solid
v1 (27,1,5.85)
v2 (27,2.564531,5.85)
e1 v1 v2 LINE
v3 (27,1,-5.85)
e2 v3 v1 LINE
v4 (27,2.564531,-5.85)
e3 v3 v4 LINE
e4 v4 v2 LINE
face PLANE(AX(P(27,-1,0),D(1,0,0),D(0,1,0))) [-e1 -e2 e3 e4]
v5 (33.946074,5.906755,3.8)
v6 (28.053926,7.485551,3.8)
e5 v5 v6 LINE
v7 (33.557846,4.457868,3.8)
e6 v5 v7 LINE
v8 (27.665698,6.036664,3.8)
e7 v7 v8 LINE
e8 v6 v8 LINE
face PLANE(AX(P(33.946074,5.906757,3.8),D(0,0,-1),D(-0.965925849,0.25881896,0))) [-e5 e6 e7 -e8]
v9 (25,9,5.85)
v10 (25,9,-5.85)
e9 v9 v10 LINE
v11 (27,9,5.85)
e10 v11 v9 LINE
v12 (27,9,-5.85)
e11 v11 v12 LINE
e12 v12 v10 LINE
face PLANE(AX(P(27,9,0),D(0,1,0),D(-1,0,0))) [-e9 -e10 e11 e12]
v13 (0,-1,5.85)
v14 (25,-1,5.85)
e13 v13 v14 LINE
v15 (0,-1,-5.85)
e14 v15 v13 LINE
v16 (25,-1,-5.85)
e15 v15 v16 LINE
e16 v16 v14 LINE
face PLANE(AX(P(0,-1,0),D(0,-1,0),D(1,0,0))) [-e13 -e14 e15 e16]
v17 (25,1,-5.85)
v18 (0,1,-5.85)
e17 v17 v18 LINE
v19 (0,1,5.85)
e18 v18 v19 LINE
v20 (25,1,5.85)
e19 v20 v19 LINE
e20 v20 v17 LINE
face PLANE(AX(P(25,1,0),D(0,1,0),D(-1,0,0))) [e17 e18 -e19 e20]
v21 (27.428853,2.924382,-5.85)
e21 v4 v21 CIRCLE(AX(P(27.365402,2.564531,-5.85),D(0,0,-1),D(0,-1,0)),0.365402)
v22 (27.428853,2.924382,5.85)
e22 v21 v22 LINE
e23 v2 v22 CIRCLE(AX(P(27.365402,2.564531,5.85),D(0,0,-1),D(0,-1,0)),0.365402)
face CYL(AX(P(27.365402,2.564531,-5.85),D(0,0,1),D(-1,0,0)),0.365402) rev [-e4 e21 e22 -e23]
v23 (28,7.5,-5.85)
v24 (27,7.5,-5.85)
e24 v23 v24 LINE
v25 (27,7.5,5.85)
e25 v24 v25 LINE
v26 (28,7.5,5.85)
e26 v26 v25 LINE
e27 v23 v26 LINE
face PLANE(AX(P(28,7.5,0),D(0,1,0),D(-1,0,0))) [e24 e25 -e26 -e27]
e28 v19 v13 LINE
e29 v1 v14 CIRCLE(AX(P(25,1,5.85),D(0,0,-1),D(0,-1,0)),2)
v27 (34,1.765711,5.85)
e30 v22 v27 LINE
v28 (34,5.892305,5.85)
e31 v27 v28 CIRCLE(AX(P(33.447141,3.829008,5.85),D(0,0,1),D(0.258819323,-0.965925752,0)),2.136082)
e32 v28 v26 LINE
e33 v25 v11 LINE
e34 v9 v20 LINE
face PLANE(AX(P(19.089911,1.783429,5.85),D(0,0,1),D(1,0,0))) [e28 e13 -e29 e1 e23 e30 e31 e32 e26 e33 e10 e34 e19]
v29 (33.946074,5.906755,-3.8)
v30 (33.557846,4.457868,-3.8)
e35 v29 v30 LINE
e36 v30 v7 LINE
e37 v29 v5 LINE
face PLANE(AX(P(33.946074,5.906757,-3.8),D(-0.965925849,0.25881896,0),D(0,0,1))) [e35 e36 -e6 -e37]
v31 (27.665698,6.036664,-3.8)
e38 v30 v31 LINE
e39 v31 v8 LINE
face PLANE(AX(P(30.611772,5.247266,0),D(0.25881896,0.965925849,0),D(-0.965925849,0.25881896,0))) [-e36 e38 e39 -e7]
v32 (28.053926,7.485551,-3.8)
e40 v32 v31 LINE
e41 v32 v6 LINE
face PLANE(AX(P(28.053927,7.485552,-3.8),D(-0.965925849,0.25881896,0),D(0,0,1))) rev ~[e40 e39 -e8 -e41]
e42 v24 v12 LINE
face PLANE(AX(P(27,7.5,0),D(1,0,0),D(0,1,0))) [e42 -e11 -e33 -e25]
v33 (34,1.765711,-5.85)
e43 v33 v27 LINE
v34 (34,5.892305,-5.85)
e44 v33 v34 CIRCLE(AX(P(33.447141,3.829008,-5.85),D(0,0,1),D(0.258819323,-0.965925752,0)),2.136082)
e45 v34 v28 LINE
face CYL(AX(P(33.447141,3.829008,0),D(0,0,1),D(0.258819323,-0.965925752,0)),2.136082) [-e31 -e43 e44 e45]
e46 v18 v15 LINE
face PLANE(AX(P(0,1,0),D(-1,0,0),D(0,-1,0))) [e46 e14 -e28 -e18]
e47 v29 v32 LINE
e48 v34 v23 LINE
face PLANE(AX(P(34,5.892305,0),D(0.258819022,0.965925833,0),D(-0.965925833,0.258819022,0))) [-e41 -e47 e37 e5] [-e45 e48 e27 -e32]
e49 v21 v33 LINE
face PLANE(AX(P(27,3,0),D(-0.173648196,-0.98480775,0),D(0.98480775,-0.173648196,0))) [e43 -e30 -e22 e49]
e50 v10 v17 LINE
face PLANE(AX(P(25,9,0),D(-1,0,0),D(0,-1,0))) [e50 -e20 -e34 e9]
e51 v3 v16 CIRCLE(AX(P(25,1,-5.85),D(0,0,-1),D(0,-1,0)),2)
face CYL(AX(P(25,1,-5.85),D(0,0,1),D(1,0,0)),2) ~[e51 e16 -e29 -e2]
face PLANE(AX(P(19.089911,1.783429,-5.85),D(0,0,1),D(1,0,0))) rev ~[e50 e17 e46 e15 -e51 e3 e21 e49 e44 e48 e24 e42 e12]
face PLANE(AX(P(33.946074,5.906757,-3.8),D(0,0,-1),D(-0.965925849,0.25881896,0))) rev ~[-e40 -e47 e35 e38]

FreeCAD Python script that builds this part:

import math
import FreeCAD as App
import Part
import Sketcher
from FreeCAD import Vector
Q = App.Units.Quantity


def edges_at(feature, points):
    """Names of the edges that pass closest to the given points."""
    edges = feature.Shape.Edges
    near = lambda p: min(range(len(edges)), key=lambda i: edges[i].distToShape(Part.Vertex(*p))[0])
    return sorted({f"Edge{near(p) + 1}" for p in points})


def add_polygon(sketch, points):
    """Adds a closed chain of lines whose ends are joined by coincident constraints."""
    first, n = sketch.GeometryCount, len(points)
    for a, b in zip(points, points[1:] + points[:1]):
        sketch.addGeometry(Part.LineSegment(App.Vector(*a, 0), App.Vector(*b, 0)), False)
    for i in range(n):
        sketch.addConstraint(Sketcher.Constraint("Coincident", first + i, 2, first + (i + 1) % n, 1))

doc = App.newDocument("Part")
params = doc.addObject("Spreadsheet::Sheet", "Params")
for row, (alias, value) in enumerate([
    ("sketch1_width", "25 mm"),
    ("sketch1_width2", "27 mm"),
    ("sketch1_width3", "1 mm"),
    ("sketch1_height", "4 mm"),
    ("sketch1_height2", "8 mm"),
    ("pad1_length", "11.7 mm"),
    ("fillet_radius", "2 mm"),
    ("fillet2_radius", "0.365402 mm"),
    ("sketch2_width", "6.1 mm"),
    ("sketch2_height", "7.6 mm"),
    ("pocket1_length", "1.5 mm"),
], start=1):
    params.set(f"A{row}", alias)
    params.set(f"B{row}", "=" + value)
    params.setAlias(f"B{row}", alias)

body = doc.addObject("PartDesign::Body", "Body")

# Sketch on XY plane
sketch1 = doc.addObject("Sketcher::SketchObject", "Sketch")
body.addObject(sketch1)
sketch1.AttachmentSupport = (doc.XY_Plane, [""])
sketch1.MapMode = "FlatFace"
sketch1.addGeometry([
    Part.LineSegment(Vector(25, 1, 0), Vector(0, 1, 0)),  # 0
    Part.LineSegment(Vector(0, 1, 0), Vector(0, -1, 0)),  # 1
    Part.LineSegment(Vector(0, -1, 0), Vector(27, -1, 0)),  # 2
    Part.LineSegment(Vector(27, -1, 0), Vector(27, 3, 0)),  # 3
    Part.LineSegment(Vector(27, 3, 0), Vector(34, 1.765711, 0)),  # 4
    Part.ArcOfCircle(Part.Circle(Vector(33.447141, 3.829008, 0), Vector(0, 0, 1), 2.136082), math.radians(-74.999983), math.radians(74.999983)),  # 5
    Part.LineSegment(Vector(34, 5.892305, 0), Vector(28, 7.5, 0)),  # 6
    Part.LineSegment(Vector(28, 7.5, 0), Vector(27, 7.5, 0)),  # 7
    Part.LineSegment(Vector(27, 7.5, 0), Vector(27, 9, 0)),  # 8
    Part.LineSegment(Vector(27, 9, 0), Vector(25, 9, 0)),  # 9
    Part.LineSegment(Vector(25, 9, 0), Vector(25, 1, 0)),  # 10
], False)
sketch1.addConstraint([
    Sketcher.Constraint("Coincident", 0, 2, 1, 1),
    Sketcher.Constraint("Coincident", 1, 2, 2, 1),
    Sketcher.Constraint("Coincident", 2, 2, 3, 1),
    Sketcher.Constraint("Coincident", 3, 2, 4, 1),
    Sketcher.Constraint("Coincident", 4, 2, 5, 1),
    Sketcher.Constraint("Tangent", 5, 2, 6, 1),
    Sketcher.Constraint("Coincident", 6, 2, 7, 1),
    Sketcher.Constraint("Coincident", 7, 2, 8, 1),
    Sketcher.Constraint("Coincident", 8, 2, 9, 1),
    Sketcher.Constraint("Coincident", 9, 2, 10, 1),
    Sketcher.Constraint("Coincident", 10, 2, 0, 1),
    Sketcher.Constraint("Horizontal", 0),
    Sketcher.Constraint("Vertical", 1),
    Sketcher.Constraint("Horizontal", 2),
    Sketcher.Constraint("Vertical", 3),
    Sketcher.Constraint("Horizontal", 7),
    Sketcher.Constraint("Vertical", 8),
    Sketcher.Constraint("Horizontal", 9),
    Sketcher.Constraint("Vertical", 10),
    Sketcher.Constraint("Symmetric", 0, 2, 1, 2, -1, 1),
    Sketcher.Constraint("Vertical", 4, 2, 5, 2),
    Sketcher.Constraint("Vertical", 3, 2, 7, 2),
    Sketcher.Constraint("Equal", 9, 1),
    Sketcher.Constraint("DistanceX", 0, 2, 0, 1, 25.0),
    Sketcher.Constraint("DistanceX", 2, 1, 2, 2, 27.0),
    Sketcher.Constraint("DistanceX", 7, 2, 7, 1, 1.0),
    Sketcher.Constraint("DistanceY", 3, 1, 3, 2, 4.0),
    Sketcher.Constraint("DistanceY", 10, 2, 10, 1, 8.0),
    Sketcher.Constraint("Angle", 4, Q("-10.000001 deg")),
    Sketcher.Constraint("Angle", 6, Q("165.000001 deg")),
    Sketcher.Constraint("DistanceY", 8, 1, 8, 2, 1.5),
    Sketcher.Constraint("DistanceX", -1, 1, 4, 2, 34.0),
])
sketch1.setExpression("Constraints[23]", "Params.sketch1_width")
sketch1.setExpression("Constraints[24]", "Params.sketch1_width2")
sketch1.setExpression("Constraints[25]", "Params.sketch1_width3")
sketch1.setExpression("Constraints[26]", "Params.sketch1_height")
sketch1.setExpression("Constraints[27]", "Params.sketch1_height2")
pad1 = doc.addObject("PartDesign::Pad", "Pad")
body.addObject(pad1)
pad1.Profile = sketch1
pad1.setExpression("Length", "Params.pad1_length")
pad1.Midplane = True
doc.recompute()

fillet = doc.addObject("PartDesign::Fillet", "Fillet")
body.addObject(fillet)
fillet.Base = (pad1, edges_at(pad1, [(27, -1, 0)]))
fillet.setExpression("Radius", "Params.fillet_radius")
doc.recompute()

fillet2 = doc.addObject("PartDesign::Fillet", "Fillet001")
body.addObject(fillet2)
fillet2.Base = (fillet, edges_at(fillet, [(27, 3, 0)]))
fillet2.setExpression("Radius", "Params.fillet2_radius")

# Sketch on an angled plane
sketch2 = doc.addObject("Sketcher::SketchObject", "Sketch001")
body.addObject(sketch2)
sketch2.Placement = App.Placement(Vector(3.750644, 13.997595, 0), App.Rotation(Vector(-0.965925849, 0.25881896, 0), Vector(0, 0, 1), Vector(0.25881896, 0.965925849, 0), "ZXY"))
add_polygon(sketch2, [(-31.260609, 3.8), (-31.260609, -3.8), (-25.160609, -3.8), (-25.160609, 3.8)])  # lines 0-3
sketch2.addConstraint([
    Sketcher.Constraint("Vertical", 0),
    Sketcher.Constraint("Horizontal", 1),
    Sketcher.Constraint("Vertical", 2),
    Sketcher.Constraint("Horizontal", 3),
    Sketcher.Constraint("DistanceX", 1, 1, 1, 2, 6.1),
    Sketcher.Constraint("DistanceY", 0, 2, 0, 1, 7.6),
    Sketcher.Constraint("DistanceY", 0, 2, -1, 1, 3.8),
    Sketcher.Constraint("DistanceX", 0, 2, -1, 1, 31.260609),
])
sketch2.setExpression("Constraints[8]", "Params.sketch2_width")
sketch2.setExpression("Constraints[9]", "Params.sketch2_height")
pocket1 = doc.addObject("PartDesign::Pocket", "Pocket")
body.addObject(pocket1)
pocket1.Profile = sketch2
pocket1.setExpression("Length", "Params.pocket1_length")

doc.recompute()
